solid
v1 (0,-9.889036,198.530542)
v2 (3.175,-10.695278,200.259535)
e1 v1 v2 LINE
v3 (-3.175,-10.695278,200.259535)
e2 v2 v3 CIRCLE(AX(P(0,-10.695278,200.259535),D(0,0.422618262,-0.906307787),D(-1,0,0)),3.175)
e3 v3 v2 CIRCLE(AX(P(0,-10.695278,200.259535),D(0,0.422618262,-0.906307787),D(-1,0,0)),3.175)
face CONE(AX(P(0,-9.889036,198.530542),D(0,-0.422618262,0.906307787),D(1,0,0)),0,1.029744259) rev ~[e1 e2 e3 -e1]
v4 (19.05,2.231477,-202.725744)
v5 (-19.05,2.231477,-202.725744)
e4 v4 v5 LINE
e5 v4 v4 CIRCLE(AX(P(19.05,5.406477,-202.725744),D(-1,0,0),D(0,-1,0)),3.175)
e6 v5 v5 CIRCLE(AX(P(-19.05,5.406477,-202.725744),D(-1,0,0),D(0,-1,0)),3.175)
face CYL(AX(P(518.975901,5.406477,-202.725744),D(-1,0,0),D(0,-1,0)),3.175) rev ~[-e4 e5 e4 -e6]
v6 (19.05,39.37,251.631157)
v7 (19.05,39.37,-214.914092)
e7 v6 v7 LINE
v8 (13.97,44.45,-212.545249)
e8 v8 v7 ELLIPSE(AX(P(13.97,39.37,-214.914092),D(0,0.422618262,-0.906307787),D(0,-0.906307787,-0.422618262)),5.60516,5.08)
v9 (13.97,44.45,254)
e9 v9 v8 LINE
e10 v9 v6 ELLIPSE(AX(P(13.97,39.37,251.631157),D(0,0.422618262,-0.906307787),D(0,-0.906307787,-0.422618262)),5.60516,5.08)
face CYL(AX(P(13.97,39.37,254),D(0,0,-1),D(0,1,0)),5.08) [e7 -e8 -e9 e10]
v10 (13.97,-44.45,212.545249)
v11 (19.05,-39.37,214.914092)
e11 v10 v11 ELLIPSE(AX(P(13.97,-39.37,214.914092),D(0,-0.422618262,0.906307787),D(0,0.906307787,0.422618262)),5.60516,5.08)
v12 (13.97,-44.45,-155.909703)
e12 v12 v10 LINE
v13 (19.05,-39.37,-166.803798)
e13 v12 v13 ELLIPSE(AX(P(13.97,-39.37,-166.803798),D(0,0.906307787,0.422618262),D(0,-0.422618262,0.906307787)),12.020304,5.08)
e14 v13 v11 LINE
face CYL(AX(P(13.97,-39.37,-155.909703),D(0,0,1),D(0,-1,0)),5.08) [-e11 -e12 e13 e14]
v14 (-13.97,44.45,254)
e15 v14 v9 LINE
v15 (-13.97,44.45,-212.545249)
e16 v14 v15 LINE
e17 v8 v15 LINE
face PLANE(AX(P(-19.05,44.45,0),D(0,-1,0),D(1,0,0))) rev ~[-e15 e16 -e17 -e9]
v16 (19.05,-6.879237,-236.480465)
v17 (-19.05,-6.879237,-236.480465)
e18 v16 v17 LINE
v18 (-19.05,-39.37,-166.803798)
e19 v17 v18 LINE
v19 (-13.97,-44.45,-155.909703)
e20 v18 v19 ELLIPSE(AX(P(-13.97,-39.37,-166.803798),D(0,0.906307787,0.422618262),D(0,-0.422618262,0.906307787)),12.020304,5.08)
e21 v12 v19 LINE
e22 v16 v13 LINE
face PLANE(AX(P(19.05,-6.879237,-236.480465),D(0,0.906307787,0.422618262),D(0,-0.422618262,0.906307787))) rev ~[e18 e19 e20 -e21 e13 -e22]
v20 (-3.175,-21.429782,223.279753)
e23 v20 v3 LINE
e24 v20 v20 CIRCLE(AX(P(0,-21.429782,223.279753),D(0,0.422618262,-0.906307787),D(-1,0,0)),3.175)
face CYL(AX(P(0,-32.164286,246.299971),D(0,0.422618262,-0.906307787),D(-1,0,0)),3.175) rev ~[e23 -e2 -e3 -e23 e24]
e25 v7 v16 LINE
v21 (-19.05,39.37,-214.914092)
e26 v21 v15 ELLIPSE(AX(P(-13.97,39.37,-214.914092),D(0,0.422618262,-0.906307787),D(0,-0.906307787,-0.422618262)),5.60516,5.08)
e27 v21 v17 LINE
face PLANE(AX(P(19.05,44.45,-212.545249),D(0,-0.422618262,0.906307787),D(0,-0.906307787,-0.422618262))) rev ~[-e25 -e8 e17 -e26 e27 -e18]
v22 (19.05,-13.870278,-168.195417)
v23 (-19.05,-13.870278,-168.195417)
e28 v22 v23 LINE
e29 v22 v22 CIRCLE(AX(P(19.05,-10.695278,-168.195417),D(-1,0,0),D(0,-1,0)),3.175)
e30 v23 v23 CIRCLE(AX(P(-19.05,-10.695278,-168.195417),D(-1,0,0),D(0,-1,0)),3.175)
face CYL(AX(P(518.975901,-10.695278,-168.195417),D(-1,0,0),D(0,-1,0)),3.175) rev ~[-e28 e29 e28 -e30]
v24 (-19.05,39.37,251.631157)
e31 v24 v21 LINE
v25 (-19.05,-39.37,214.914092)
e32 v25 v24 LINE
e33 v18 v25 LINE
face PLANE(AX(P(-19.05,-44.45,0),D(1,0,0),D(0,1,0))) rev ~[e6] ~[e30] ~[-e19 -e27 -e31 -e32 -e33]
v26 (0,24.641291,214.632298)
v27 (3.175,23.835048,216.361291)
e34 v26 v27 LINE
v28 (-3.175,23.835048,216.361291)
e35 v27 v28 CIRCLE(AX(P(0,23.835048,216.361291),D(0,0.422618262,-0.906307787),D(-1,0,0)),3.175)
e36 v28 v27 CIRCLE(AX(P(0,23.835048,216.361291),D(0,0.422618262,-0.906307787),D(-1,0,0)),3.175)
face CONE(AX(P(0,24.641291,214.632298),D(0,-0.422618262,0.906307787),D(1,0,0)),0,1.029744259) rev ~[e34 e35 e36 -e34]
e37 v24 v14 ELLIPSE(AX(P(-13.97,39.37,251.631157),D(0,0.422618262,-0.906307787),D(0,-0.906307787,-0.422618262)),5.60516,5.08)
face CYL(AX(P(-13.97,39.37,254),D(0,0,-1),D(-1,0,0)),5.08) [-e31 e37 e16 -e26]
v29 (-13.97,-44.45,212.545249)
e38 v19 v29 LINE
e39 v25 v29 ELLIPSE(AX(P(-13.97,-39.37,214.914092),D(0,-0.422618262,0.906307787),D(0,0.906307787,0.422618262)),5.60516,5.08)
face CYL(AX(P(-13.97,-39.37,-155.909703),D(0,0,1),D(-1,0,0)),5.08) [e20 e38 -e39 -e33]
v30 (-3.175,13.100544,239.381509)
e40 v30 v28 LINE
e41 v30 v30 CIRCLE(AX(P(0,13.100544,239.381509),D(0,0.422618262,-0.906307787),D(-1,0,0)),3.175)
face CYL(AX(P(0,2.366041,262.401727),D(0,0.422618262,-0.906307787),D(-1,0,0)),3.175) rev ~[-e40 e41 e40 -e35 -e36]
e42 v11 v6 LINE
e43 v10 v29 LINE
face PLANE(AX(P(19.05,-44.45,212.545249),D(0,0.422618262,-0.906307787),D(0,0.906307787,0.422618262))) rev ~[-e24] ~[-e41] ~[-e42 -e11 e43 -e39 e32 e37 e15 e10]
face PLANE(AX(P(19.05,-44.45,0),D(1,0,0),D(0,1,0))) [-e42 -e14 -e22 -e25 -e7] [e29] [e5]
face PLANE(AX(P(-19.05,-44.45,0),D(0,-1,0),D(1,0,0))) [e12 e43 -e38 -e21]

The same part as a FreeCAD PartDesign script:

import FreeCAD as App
import Part
import Sketcher
from FreeCAD import Vector
Q = App.Units.Quantity


def edges_at(feature, points):
    """Names of the edges that pass closest to the given points."""
    edges = feature.Shape.Edges
    near = lambda p: min(range(len(edges)), key=lambda i: edges[i].distToShape(Part.Vertex(*p))[0])
    return sorted({f"Edge{near(p) + 1}" for p in points})

doc = App.newDocument("Part")
params = doc.addObject("Spreadsheet::Sheet", "Params")
for row, (alias, value) in enumerate([
    ("sketch1_width", "1.5 in"),
    ("sketch1_height", "3.5 in"),
    ("pad1_length", "20 in"),
    ("sketch2_width", "3.5 in"),
    ("sketch2_length", "3.5 in"),
    ("sketch3_diameter", "0.25 in"),
    ("hole_diameter", "0.25 in"),
    ("fillet_radius", "0.2 in"),
    ("sketch4_diameter", "0.25 in"),
    ("hole2_diameter", "0.25 in"),
    ("hole2_depth", "1 in"),
], start=1):
    params.set(f"A{row}", alias)
    params.set(f"B{row}", "=" + value)
    params.setAlias(f"B{row}", alias)

body = doc.addObject("PartDesign::Body", "Body")

# Sketch on XY plane
sketch1 = body.newObject("Sketcher::SketchObject", "Sketch")
sketch1.AttachmentSupport = (doc.getObject("XY_Plane"), [""])
sketch1.MapMode = "FlatFace"
sketch1.addGeometry(Part.LineSegment(Vector(-19, 44, 0), Vector(-19, -44, 0)), False)
sketch1.addGeometry(Part.LineSegment(Vector(-19, -44, 0), Vector(19, -44, 0)), False)
sketch1.addGeometry(Part.LineSegment(Vector(19, -44, 0), Vector(19, 44, 0)), False)
sketch1.addGeometry(Part.LineSegment(Vector(19, 44, 0), Vector(-19, 44, 0)), False)
sketch1.addConstraint(Sketcher.Constraint("Coincident", 0, 2, 1, 1))
sketch1.addConstraint(Sketcher.Constraint("Coincident", 1, 2, 2, 1))
sketch1.addConstraint(Sketcher.Constraint("Coincident", 2, 2, 3, 1))
sketch1.addConstraint(Sketcher.Constraint("Coincident", 3, 2, 0, 1))
sketch1.addConstraint(Sketcher.Constraint("Vertical", 0))
sketch1.addConstraint(Sketcher.Constraint("Horizontal", 1))
sketch1.addConstraint(Sketcher.Constraint("Vertical", 2))
sketch1.addConstraint(Sketcher.Constraint("Horizontal", 3))
sketch1.addConstraint(Sketcher.Constraint("Symmetric", 0, 2, 2, 2, -1, 1))
sketch1.addConstraint(Sketcher.Constraint("DistanceX", 1, 1, 1, 2, Q("1.5 in")))
sketch1.addConstraint(Sketcher.Constraint("DistanceY", 0, 2, 0, 1, Q("3.5 in")))
sketch1.setExpression("Constraints[9]", "Params.sketch1_width")
sketch1.setExpression("Constraints[10]", "Params.sketch1_height")
pad1 = body.newObject("PartDesign::Pad", "Pad")
pad1.Profile = sketch1
pad1.setExpression("Length", "Params.pad1_length")
pad1.Midplane = True

# Sketch on YZ plane
sketch2 = body.newObject("Sketcher::SketchObject", "Sketch001")
sketch2.AttachmentSupport = (doc.getObject("YZ_Plane"), [""])
sketch2.MapMode = "FlatFace"
sketch2.AttachmentOffset = App.Placement(Vector(0, 0, 0.75 * 25.4), App.Rotation())
sketch2.addGeometry(Part.LineSegment(Vector(-44, 254, 0), Vector(-44, 213, 0)), False)
sketch2.addGeometry(Part.LineSegment(Vector(-44, 213, 0), Vector(44, 254, 0)), False)
sketch2.addGeometry(Part.LineSegment(Vector(44, 254, 0), Vector(-44, 254, 0)), False)
sketch2.addGeometry(Part.LineSegment(Vector(-44, -254, 0), Vector(44, -254, 0)), False)
sketch2.addGeometry(Part.LineSegment(Vector(44, -254, 0), Vector(44, -213, 0)), False)
sketch2.addGeometry(Part.LineSegment(Vector(44, -213, 0), Vector(-7, -236, 0)), False)
sketch2.addGeometry(Part.LineSegment(Vector(-7, -236, 0), Vector(-44, -156, 0)), False)
sketch2.addGeometry(Part.LineSegment(Vector(-44, -156, 0), Vector(-44, -254, 0)), False)
sketch2.addConstraint(Sketcher.Constraint("Coincident", 0, 2, 1, 1))
sketch2.addConstraint(Sketcher.Constraint("Coincident", 1, 2, 2, 1))
sketch2.addConstraint(Sketcher.Constraint("Coincident", 2, 2, 0, 1))
sketch2.addConstraint(Sketcher.Constraint("Coincident", 3, 2, 4, 1))
sketch2.addConstraint(Sketcher.Constraint("Coincident", 4, 2, 5, 1))
sketch2.addConstraint(Sketcher.Constraint("Coincident", 5, 2, 6, 1))
sketch2.addConstraint(Sketcher.Constraint("Coincident", 6, 2, 7, 1))
sketch2.addConstraint(Sketcher.Constraint("Coincident", 7, 2, 3, 1))
sketch2.addConstraint(Sketcher.Constraint("Vertical", 0))
sketch2.addConstraint(Sketcher.Constraint("Horizontal", 2))
sketch2.addConstraint(Sketcher.Constraint("Horizontal", 3))
sketch2.addConstraint(Sketcher.Constraint("Vertical", 4))
sketch2.addConstraint(Sketcher.Constraint("Vertical", 7))
sketch2.addConstraint(Sketcher.Constraint("Symmetric", 2, 2, 3, 2, -1, 1))
sketch2.addConstraint(Sketcher.Constraint("Parallel", 1, 5))
sketch2.addConstraint(Sketcher.Constraint("Perpendicular", 5, 6))
sketch2.addConstraint(Sketcher.Constraint("Vertical", 1, 2, 3, 2))
sketch2.addConstraint(Sketcher.Constraint("Vertical", 2, 2, 6, 2))
sketch2.addConstraint(Sketcher.Constraint("Equal", 0, 4))
sketch2.addConstraint(Sketcher.Constraint("DistanceX", 2, 2, 2, 1, Q("3.5 in")))
sketch2.addConstraint(Sketcher.Constraint("DistanceY", -1, 1, 1, 2, Q("10 in")))
sketch2.addConstraint(Sketcher.Constraint("Angle", 1, Q("25 deg")))
sketch2.addConstraint(Sketcher.Constraint("Distance", 6, Q("3.5 in")))
sketch2.setExpression("Constraints[19]", "Params.sketch2_width")
sketch2.setExpression("Constraints[22]", "Params.sketch2_length")
pocket1 = body.newObject("PartDesign::Pocket", "Pocket")
pocket1.Profile = sketch2
pocket1.Type = "ThroughAll"

# Sketch on YZ plane
sketch3 = body.newObject("Sketcher::SketchObject", "Sketch002")
sketch3.AttachmentSupport = (doc.getObject("YZ_Plane"), [""])
sketch3.MapMode = "FlatFace"
sketch3.AttachmentOffset = App.Placement(Vector(0, 0, 0.75 * 25.4), App.Rotation())
sketch3.addGeometry(Part.Circle(Vector(-10.7, -168.2, 0), Vector(0, 0, 1), 3.2), False)
sketch3.addGeometry(Part.Circle(Vector(5.4, -202.7, 0), Vector(0, 0, 1), 3.2), False)
sketch3.addConstraint(Sketcher.Constraint("Equal", 0, 1))
sketch3.addConstraint(Sketcher.Constraint("Diameter", 0, Q("0.25 in")))
sketch3.addConstraint(Sketcher.Constraint("DistanceX", 0, 3, -1, 1, 10.695278))
sketch3.addConstraint(Sketcher.Constraint("DistanceY", 0, 3, -1, 1, 168.195417))
sketch3.addConstraint(Sketcher.Constraint("DistanceX", -1, 1, 1, 3, 5.406477))
sketch3.addConstraint(Sketcher.Constraint("DistanceY", 1, 3, -1, 1, 202.725744))
sketch3.setExpression("Constraints[1]", "Params.sketch3_diameter")
doc.recompute()
hole = body.newObject("PartDesign::Hole", "Hole")
hole.Profile = sketch3
hole.ThreadType = "None"
hole.setExpression("Diameter", "Params.hole_diameter")
hole.DepthType = "ThroughAll"
doc.recompute()

fillet = body.newObject("PartDesign::Fillet", "Fillet")
fillet.Base = (hole, edges_at(hole, [
    (19.05, -44.45, 28.318),
    (-19.05, -44.45, 28.318),
    (19.05, 44.45, 20.727),
    (-19.05, 44.45, 20.727),
]))
fillet.setExpression("Radius", "Params.fillet_radius")

# Sketch on an angled plane
sketch4 = body.newObject("Sketcher::SketchObject", "Sketch003")
sketch4.Placement = App.Placement(Vector(0, -89.348599, 191.608689), App.Rotation(Vector(1, 0, 0), Vector(0, 0.906307787, 0.422618262), Vector(0, -0.422618262, 0.906307787), "ZXY"))
sketch4.addGeometry(Part.Circle(Vector(0, 113, 0), Vector(0, 0, 1), 3.2), False)
sketch4.addGeometry(Part.Circle(Vector(0, 74.9, 0), Vector(0, 0, 1), 3.2), False)
sketch4.addConstraint(Sketcher.Constraint("Equal", 0, 1))
sketch4.addConstraint(Sketcher.Constraint("PointOnObject", 0, 3, -2))
sketch4.addConstraint(Sketcher.Constraint("PointOnObject", 1, 3, -2))
sketch4.addConstraint(Sketcher.Constraint("Diameter", 0, Q("0.25 in")))
sketch4.addConstraint(Sketcher.Constraint("DistanceY", 1, 3, 0, 3, Q("1.5 in")))
sketch4.addConstraint(Sketcher.Constraint("DistanceY", -1, 1, 0, 3, 113.040123))
sketch4.setExpression("Constraints[3]", "Params.sketch4_diameter")
doc.recompute()
hole2 = body.newObject("PartDesign::Hole", "Hole001")
hole2.Profile = sketch4
hole2.ThreadType = "None"
hole2.setExpression("Diameter", "Params.hole2_diameter")
hole2.DepthType = "Dimension"
hole2.setExpression("Depth", "Params.hole2_depth")
hole2.DrillPoint = "Angled"
hole2.DrillPointAngle = 118

doc.recompute()
